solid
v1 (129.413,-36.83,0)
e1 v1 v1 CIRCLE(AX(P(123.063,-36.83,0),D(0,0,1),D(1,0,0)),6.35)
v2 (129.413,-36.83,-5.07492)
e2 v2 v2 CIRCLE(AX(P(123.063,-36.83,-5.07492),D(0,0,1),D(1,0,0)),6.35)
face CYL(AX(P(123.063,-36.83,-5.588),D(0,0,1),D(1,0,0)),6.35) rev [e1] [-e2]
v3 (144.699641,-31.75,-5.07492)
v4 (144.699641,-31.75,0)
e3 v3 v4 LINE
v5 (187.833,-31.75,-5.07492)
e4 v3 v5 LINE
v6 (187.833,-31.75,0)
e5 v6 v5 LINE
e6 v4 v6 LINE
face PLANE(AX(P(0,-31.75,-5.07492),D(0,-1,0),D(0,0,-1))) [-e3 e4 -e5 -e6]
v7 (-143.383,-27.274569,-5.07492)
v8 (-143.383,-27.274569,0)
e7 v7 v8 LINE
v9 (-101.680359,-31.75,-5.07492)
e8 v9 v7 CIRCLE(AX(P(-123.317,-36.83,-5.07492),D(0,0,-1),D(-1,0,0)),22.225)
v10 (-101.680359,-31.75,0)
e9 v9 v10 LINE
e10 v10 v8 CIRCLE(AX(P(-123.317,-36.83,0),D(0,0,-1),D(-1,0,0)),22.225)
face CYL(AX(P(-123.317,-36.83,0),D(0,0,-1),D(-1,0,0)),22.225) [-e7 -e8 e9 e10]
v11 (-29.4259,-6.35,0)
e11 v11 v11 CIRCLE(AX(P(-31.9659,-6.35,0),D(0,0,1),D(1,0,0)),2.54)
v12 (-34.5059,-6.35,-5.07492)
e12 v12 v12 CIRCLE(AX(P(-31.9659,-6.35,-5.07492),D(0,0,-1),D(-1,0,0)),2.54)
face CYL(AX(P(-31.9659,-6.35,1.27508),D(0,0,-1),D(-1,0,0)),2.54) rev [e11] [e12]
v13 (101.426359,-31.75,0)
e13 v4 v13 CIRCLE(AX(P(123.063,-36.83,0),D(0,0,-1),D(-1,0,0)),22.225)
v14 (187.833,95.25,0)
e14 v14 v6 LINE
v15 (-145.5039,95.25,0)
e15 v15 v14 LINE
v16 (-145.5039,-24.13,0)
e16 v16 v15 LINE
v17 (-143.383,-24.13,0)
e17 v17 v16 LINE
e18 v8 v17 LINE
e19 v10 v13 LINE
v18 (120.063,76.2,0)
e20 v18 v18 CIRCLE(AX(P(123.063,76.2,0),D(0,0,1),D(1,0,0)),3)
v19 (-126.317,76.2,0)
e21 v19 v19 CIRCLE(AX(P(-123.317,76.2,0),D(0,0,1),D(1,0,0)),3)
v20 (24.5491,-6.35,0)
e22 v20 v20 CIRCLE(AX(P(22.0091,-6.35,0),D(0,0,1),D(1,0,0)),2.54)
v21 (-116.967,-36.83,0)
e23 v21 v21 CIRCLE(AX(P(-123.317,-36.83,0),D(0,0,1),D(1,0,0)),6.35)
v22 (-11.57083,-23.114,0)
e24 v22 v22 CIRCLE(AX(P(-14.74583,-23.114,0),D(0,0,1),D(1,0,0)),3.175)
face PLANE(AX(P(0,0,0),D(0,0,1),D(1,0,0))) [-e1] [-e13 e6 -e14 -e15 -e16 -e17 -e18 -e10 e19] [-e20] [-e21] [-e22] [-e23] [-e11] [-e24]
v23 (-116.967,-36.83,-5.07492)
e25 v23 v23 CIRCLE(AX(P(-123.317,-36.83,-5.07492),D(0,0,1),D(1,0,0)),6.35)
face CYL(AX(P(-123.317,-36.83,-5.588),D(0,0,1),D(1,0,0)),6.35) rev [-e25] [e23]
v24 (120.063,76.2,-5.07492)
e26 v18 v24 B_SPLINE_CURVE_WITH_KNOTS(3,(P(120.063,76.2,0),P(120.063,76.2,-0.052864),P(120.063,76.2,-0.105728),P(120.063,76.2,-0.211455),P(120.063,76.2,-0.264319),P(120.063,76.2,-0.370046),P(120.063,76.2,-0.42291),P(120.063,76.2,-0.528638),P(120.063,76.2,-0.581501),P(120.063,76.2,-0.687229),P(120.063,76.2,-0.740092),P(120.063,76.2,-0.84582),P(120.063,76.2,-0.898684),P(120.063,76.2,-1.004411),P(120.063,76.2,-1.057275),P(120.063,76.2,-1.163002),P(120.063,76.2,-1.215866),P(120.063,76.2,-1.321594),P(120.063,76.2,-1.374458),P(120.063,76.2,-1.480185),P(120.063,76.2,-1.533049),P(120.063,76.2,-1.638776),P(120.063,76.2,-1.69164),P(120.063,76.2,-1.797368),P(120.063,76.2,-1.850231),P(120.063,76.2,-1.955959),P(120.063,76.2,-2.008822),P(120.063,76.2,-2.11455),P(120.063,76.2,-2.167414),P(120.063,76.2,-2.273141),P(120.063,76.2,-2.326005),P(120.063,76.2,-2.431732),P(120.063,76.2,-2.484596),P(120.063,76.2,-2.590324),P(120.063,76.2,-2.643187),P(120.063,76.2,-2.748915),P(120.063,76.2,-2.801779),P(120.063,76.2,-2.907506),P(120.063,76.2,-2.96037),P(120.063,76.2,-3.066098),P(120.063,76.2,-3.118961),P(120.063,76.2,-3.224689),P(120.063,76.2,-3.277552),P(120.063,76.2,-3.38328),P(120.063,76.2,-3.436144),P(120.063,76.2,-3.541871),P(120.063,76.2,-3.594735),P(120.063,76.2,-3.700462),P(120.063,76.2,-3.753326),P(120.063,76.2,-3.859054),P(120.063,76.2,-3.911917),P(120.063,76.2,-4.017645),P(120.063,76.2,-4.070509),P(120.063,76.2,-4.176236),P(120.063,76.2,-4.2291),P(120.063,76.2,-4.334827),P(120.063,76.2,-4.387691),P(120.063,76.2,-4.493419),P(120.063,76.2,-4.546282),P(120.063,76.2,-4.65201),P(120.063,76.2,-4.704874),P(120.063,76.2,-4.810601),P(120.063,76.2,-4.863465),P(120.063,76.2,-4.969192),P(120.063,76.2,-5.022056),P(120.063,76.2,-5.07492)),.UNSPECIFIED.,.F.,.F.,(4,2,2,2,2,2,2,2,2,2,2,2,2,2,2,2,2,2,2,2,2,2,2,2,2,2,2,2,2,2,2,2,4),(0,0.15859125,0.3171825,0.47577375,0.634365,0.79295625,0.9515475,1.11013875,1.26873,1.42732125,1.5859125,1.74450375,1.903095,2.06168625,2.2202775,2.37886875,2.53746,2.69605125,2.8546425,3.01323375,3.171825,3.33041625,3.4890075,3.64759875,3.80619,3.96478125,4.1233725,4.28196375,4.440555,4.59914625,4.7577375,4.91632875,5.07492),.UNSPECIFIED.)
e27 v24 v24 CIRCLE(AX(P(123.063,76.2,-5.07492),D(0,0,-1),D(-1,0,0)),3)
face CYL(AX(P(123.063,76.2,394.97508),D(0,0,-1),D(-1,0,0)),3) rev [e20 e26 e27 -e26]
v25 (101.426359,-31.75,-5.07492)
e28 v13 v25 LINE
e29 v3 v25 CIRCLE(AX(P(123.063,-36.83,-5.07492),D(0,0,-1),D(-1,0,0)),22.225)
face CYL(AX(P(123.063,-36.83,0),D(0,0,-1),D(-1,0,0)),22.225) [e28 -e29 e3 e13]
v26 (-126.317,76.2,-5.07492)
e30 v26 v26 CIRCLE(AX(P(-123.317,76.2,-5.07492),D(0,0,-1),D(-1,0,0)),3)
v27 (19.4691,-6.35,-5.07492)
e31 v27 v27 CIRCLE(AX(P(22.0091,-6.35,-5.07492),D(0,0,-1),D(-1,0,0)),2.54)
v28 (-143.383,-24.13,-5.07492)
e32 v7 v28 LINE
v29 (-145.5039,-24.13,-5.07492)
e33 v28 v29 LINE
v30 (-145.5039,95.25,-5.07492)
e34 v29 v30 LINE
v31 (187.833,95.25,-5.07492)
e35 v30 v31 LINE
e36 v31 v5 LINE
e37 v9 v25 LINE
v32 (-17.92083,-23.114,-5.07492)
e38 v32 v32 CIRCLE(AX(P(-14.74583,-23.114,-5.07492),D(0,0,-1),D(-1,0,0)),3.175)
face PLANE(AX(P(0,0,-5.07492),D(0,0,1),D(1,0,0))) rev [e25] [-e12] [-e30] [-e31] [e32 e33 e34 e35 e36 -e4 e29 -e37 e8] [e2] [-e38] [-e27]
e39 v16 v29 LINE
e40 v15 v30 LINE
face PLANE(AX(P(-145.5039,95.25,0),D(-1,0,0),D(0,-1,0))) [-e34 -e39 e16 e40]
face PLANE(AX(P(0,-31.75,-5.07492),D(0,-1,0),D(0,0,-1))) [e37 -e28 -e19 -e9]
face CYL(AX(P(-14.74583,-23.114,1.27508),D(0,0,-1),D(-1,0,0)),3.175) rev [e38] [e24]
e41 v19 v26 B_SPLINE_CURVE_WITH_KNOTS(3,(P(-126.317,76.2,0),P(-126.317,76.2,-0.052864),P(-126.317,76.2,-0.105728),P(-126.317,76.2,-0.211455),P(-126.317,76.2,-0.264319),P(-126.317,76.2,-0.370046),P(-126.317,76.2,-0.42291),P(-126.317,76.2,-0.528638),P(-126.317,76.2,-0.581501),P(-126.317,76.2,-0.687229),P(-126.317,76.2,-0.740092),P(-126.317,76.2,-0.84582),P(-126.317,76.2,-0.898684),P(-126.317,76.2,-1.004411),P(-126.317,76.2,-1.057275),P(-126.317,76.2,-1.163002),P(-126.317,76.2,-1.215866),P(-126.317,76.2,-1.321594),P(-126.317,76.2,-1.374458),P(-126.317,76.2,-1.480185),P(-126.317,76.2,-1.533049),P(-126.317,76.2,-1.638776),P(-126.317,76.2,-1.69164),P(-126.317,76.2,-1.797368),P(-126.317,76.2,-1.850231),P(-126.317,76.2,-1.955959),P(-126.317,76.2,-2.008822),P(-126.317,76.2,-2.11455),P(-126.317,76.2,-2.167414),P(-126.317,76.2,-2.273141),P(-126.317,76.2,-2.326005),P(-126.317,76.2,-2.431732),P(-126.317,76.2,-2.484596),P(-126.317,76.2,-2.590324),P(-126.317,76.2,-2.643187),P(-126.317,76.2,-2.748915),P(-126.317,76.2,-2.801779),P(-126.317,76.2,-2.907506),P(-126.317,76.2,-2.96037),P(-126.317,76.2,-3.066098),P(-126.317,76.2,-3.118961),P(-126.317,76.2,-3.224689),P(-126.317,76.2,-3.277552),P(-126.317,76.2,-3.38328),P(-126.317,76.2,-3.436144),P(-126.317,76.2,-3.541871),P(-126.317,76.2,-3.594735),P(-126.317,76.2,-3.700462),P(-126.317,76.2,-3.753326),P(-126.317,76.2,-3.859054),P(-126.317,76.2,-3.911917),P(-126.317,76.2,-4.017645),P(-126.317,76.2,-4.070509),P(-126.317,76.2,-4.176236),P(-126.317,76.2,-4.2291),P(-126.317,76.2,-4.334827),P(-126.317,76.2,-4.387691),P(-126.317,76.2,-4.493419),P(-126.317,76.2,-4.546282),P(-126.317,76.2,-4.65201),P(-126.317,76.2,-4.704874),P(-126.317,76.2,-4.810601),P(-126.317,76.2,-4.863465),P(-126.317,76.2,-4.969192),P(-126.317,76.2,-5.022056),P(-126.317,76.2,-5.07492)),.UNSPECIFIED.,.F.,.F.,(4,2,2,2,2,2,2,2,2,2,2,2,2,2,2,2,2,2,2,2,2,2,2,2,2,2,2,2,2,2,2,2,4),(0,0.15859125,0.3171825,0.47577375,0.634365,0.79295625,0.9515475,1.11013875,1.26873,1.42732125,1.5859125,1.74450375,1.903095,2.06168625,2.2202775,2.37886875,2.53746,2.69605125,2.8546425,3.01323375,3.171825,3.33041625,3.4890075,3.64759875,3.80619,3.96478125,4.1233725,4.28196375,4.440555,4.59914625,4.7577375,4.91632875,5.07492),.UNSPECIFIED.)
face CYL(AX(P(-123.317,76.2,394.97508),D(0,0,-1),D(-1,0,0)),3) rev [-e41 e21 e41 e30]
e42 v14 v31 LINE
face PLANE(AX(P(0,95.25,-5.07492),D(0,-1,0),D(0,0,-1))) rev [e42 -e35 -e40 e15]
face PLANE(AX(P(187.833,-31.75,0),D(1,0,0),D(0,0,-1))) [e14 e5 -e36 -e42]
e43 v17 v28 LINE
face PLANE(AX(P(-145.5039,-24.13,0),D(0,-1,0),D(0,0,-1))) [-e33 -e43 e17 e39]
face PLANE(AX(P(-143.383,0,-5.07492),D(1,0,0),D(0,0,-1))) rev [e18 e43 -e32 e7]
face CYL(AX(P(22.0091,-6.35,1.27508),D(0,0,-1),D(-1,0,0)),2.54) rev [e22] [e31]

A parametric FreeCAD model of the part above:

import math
import FreeCAD as App
import Part
import Sketcher

V = App.Vector
Q = App.Units.Quantity

doc = App.newDocument("Part")
body = doc.addObject("PartDesign::Body", "Body")

# Sketch on XY plane
sketch1 = body.newObject("Sketcher::SketchObject", "Sketch")
sketch1.AttachmentSupport = (doc.getObject("XY_Plane"), [""])
sketch1.MapMode = "FlatFace"
sketch1.addGeometry([
    Part.LineSegment(V(-143, -32, 0), V(-127, -32, 0)),  # 0
    Part.ArcOfCircle(Part.Circle(V(-123, -37, 0), V(0, 0, 1), 6), math.radians(53), math.radians(127)),  # 1
    Part.LineSegment(V(-120, -32, 0), V(119, -32, 0)),  # 2
    Part.ArcOfCircle(Part.Circle(V(123, -37, 0), V(0, 0, 1), 6), math.radians(53), math.radians(127)),  # 3
    Part.LineSegment(V(127, -32, 0), V(143, -32, 0)),  # 4
    Part.LineSegment(V(143, -32, 0), V(143, 95, 0)),  # 5
    Part.LineSegment(V(143, 95, 0), V(-143, 95, 0)),  # 6
    Part.LineSegment(V(-143, 95, 0), V(-143, -32, 0)),  # 7
], False)
sketch1.addConstraint([
    Sketcher.Constraint("Coincident", 0, 2, 1, 2),
    Sketcher.Constraint("Coincident", 1, 1, 2, 1),
    Sketcher.Constraint("Coincident", 2, 2, 3, 2),
    Sketcher.Constraint("Coincident", 3, 1, 4, 1),
    Sketcher.Constraint("Coincident", 4, 2, 5, 1),
    Sketcher.Constraint("Coincident", 5, 2, 6, 1),
    Sketcher.Constraint("Coincident", 6, 2, 7, 1),
    Sketcher.Constraint("Coincident", 7, 2, 0, 1),
    Sketcher.Constraint("Horizontal", 0),
    Sketcher.Constraint("Horizontal", 2),
    Sketcher.Constraint("Horizontal", 4),
    Sketcher.Constraint("Vertical", 5),
    Sketcher.Constraint("Horizontal", 6),
    Sketcher.Constraint("Vertical", 7),
    Sketcher.Constraint("Equal", 1, 3),
    Sketcher.Constraint("Symmetric", 4, 2, 7, 2, -2),
    Sketcher.Constraint("Horizontal", 1, 3, 3, 3),
    Sketcher.Constraint("Horizontal", 0, 2, 1, 1),
    Sketcher.Constraint("DistanceY", 5, 1, 5, 2, Q("5 in")),
    Sketcher.Constraint("Radius", 1, Q("0.25 in")),
    Sketcher.Constraint("DistanceX", 2, 1, 2, 2, Q("9.4 in")),
    Sketcher.Constraint("DistanceX", 0, 2, 3, 1, Q("10 in")),
    Sketcher.Constraint("DistanceX", 0, 1, 0, 2, Q("0.64 in")),
    Sketcher.Constraint("DistanceX", 4, 1, 4, 2, Q("0.65 in")),
    Sketcher.Constraint("DistanceY", 1, 3, -1, 1, Q("1.45 in")),
])
pad1 = body.newObject("PartDesign::Pad", "Pad")
pad1.Profile = sketch1
pad1.Length = Q("0.1998 in")
pad1.Reversed = True

# Sketch on XY plane
sketch2 = body.newObject("Sketcher::SketchObject", "Sketch001")
sketch2.AttachmentSupport = (doc.getObject("XY_Plane"), [""])
sketch2.MapMode = "FlatFace"
sketch2.AttachmentOffset = App.Placement(V(0, 0, -0.1998 * 25.4), App.Rotation())
sketch2.addGeometry([
    Part.LineSegment(V(188, 95, 0), V(188, -32, 0)),
    Part.LineSegment(V(188, -32, 0), V(143, -32, 0)),
    Part.LineSegment(V(143, -32, 0), V(143, 95, 0)),
    Part.LineSegment(V(143, 95, 0), V(188, 95, 0)),
], False)
sketch2.addConstraint([
    Sketcher.Constraint("Coincident", 0, 2, 1, 1),
    Sketcher.Constraint("Coincident", 1, 2, 2, 1),
    Sketcher.Constraint("Coincident", 2, 2, 3, 1),
    Sketcher.Constraint("Coincident", 3, 2, 0, 1),
    Sketcher.Constraint("Vertical", 0),
    Sketcher.Constraint("Horizontal", 1),
    Sketcher.Constraint("Vertical", 2),
    Sketcher.Constraint("Horizontal", 3),
    Sketcher.Constraint("DistanceY", 0, 2, 0, 1, Q("5 in")),
    Sketcher.Constraint("DistanceX", 1, 2, 1, 1, Q("1.75 in")),
    Sketcher.Constraint("DistanceY", 0, 2, -1, 1, Q("1.25 in")),
    Sketcher.Constraint("DistanceX", -1, 1, 0, 2, Q("7.395 in")),
])
pad2 = body.newObject("PartDesign::Pad", "Pad001")
pad2.Profile = sketch2
pad2.Length = Q("0.1998 in")

# Sketch on XY plane
sketch3 = body.newObject("Sketcher::SketchObject", "Sketch002")
sketch3.AttachmentSupport = (doc.getObject("XY_Plane"), [""])
sketch3.MapMode = "FlatFace"
sketch3.AttachmentOffset = App.Placement(V(0, 0, -0.1998 * 25.4), App.Rotation())
sketch3.addGeometry([
    Part.Circle(V(123, -37, 0), V(0, 0, 1), 22),
    Part.Circle(V(-123, -37, 0), V(0, 0, 1), 22),
], False)
sketch3.addConstraint([
    Sketcher.Constraint("Equal", 0, 1),
    Sketcher.Constraint("Horizontal", 0, 3, 1, 3),
    Sketcher.Constraint("Diameter", 0, Q("1.75 in")),
    Sketcher.Constraint("DistanceX", 1, 3, 0, 3, Q("9.7 in")),
    Sketcher.Constraint("DistanceY", 0, 3, -1, 1, Q("1.45 in")),
    Sketcher.Constraint("DistanceX", -1, 1, 0, 3, Q("4.845 in")),
])
pad3 = body.newObject("PartDesign::Pad", "Pad002")
pad3.Profile = sketch3
pad3.Length = Q("0.1998 in")

# Sketch on XY plane
sketch4 = body.newObject("Sketcher::SketchObject", "Sketch003")
sketch4.AttachmentSupport = (doc.getObject("XY_Plane"), [""])
sketch4.MapMode = "FlatFace"
sketch4.addGeometry([
    Part.Circle(V(-123, -37, 0), V(0, 0, 1), 6),
    Part.Circle(V(123, -37, 0), V(0, 0, 1), 6),
], False)
sketch4.addConstraint([
    Sketcher.Constraint("Equal", 0, 1),
    Sketcher.Constraint("Horizontal", 0, 3, 1, 3),
    Sketcher.Constraint("Diameter", 0, Q("0.5 in")),
    Sketcher.Constraint("DistanceX", 0, 3, 1, 3, Q("9.7 in")),
    Sketcher.Constraint("DistanceY", 0, 3, -1, 1, Q("1.45 in")),
    Sketcher.Constraint("DistanceX", 0, 3, -1, 1, Q("4.855 in")),
])
pocket1 = body.newObject("PartDesign::Pocket", "Pocket")
pocket1.Profile = sketch4
pocket1.Length = Q("0.22 in")

# Sketch on XY plane
sketch5 = body.newObject("Sketcher::SketchObject", "Sketch004")
sketch5.AttachmentSupport = (doc.getObject("XY_Plane"), [""])
sketch5.MapMode = "FlatFace"
sketch5.AttachmentOffset = App.Placement(V(0, 0, -0.1998 * 25.4), App.Rotation())
sketch5.addGeometry([
    Part.LineSegment(V(-142.8, 95.2, 0), V(-142.8, -24.1, 0)),
    Part.LineSegment(V(-142.8, -24.1, 0), V(-145.5, -24.1, 0)),
    Part.LineSegment(V(-145.5, -24.1, 0), V(-145.5, 95.2, 0)),
    Part.LineSegment(V(-145.5, 95.2, 0), V(-142.8, 95.2, 0)),
], False)
sketch5.addConstraint([
    Sketcher.Constraint("Coincident", 0, 2, 1, 1),
    Sketcher.Constraint("Coincident", 1, 2, 2, 1),
    Sketcher.Constraint("Coincident", 2, 2, 3, 1),
    Sketcher.Constraint("Coincident", 3, 2, 0, 1),
    Sketcher.Constraint("Vertical", 0),
    Sketcher.Constraint("Horizontal", 1),
    Sketcher.Constraint("Vertical", 2),
    Sketcher.Constraint("Horizontal", 3),
    Sketcher.Constraint("DistanceY", 0, 2, 0, 1, Q("4.7 in")),
    Sketcher.Constraint("DistanceY", 0, 2, -1, 1, Q("0.95 in")),
    Sketcher.Constraint("DistanceX", 1, 2, -1, 1, Q("5.7285 in")),
    Sketcher.Constraint("DistanceX", 1, 2, 1, 1, Q("2.72815 mm")),
])
pad4 = body.newObject("PartDesign::Pad", "Pad003")
pad4.Profile = sketch5
pad4.Length = Q("0.1998 in")

# Sketch on XY plane
sketch6 = body.newObject("Sketcher::SketchObject", "Sketch005")
sketch6.AttachmentSupport = (doc.getObject("XY_Plane"), [""])
sketch6.MapMode = "FlatFace"
sketch6.AttachmentOffset = App.Placement(V(0, 0, -0.1998 * 25.4), App.Rotation())
sketch6.addGeometry([
    Part.Circle(V(123.1, 76.2, 0), V(0, 0, 1), 3),
    Part.Circle(V(-123.3, 76.2, 0), V(0, 0, 1), 3),
], False)
sketch6.addConstraint([
    Sketcher.Constraint("Equal", 0, 1),
    Sketcher.Constraint("Horizontal", 0, 3, 1, 3),
    Sketcher.Constraint("DistanceY", -1, 1, 0, 3, Q("3 in")),
    Sketcher.Constraint("DistanceX", 1, 3, 0, 3, Q("9.7 in")),
    Sketcher.Constraint("Diameter", 0, Q("6 mm")),
    Sketcher.Constraint("DistanceX", -1, 1, 0, 3, Q("4.845 in")),
])
pocket2 = body.newObject("PartDesign::Pocket", "Pocket001")
pocket2.Profile = sketch6
pocket2.Length = Q("15.75 in")
pocket2.Reversed = True

# Sketch on XY plane
sketch7 = body.newObject("Sketcher::SketchObject", "Sketch006")
sketch7.AttachmentSupport = (doc.getObject("XY_Plane"), [""])
sketch7.MapMode = "FlatFace"
sketch7.AttachmentOffset = App.Placement(V(0, 0, -0.1998 * 25.4), App.Rotation())
sketch7.addGeometry([
    Part.Circle(V(22, -6.3, 0), V(0, 0, 1), 2.5),
    Part.Circle(V(-32, -6.3, 0), V(0, 0, 1), 2.5),
    Part.Circle(V(-14.7, -23.1, 0), V(0, 0, 1), 3.2),
], False)
sketch7.addConstraint([
    Sketcher.Constraint("Equal", 0, 1),
    Sketcher.Constraint("Horizontal", 0, 3, 1, 3),
    Sketcher.Constraint("Diameter", 0, Q("0.2 in")),
    Sketcher.Constraint("Diameter", 2, Q("0.25 in")),
    Sketcher.Constraint("DistanceY", 0, 3, -1, 1, Q("0.25 in")),
    Sketcher.Constraint("DistanceY", 2, 3, -1, 1, Q("0.91 in")),
    Sketcher.Constraint("DistanceX", 1, 3, 0, 3, Q("2.125 in")),
    Sketcher.Constraint("DistanceX", -1, 1, 0, 3, Q("0.8665 in")),
    Sketcher.Constraint("DistanceX", 2, 3, -1, 1, Q("14.74583 mm")),
])
pocket3 = body.newObject("PartDesign::Pocket", "Pocket002")
pocket3.Profile = sketch7
pocket3.Length = Q("0.25 in")
pocket3.Reversed = True

doc.recompute()
